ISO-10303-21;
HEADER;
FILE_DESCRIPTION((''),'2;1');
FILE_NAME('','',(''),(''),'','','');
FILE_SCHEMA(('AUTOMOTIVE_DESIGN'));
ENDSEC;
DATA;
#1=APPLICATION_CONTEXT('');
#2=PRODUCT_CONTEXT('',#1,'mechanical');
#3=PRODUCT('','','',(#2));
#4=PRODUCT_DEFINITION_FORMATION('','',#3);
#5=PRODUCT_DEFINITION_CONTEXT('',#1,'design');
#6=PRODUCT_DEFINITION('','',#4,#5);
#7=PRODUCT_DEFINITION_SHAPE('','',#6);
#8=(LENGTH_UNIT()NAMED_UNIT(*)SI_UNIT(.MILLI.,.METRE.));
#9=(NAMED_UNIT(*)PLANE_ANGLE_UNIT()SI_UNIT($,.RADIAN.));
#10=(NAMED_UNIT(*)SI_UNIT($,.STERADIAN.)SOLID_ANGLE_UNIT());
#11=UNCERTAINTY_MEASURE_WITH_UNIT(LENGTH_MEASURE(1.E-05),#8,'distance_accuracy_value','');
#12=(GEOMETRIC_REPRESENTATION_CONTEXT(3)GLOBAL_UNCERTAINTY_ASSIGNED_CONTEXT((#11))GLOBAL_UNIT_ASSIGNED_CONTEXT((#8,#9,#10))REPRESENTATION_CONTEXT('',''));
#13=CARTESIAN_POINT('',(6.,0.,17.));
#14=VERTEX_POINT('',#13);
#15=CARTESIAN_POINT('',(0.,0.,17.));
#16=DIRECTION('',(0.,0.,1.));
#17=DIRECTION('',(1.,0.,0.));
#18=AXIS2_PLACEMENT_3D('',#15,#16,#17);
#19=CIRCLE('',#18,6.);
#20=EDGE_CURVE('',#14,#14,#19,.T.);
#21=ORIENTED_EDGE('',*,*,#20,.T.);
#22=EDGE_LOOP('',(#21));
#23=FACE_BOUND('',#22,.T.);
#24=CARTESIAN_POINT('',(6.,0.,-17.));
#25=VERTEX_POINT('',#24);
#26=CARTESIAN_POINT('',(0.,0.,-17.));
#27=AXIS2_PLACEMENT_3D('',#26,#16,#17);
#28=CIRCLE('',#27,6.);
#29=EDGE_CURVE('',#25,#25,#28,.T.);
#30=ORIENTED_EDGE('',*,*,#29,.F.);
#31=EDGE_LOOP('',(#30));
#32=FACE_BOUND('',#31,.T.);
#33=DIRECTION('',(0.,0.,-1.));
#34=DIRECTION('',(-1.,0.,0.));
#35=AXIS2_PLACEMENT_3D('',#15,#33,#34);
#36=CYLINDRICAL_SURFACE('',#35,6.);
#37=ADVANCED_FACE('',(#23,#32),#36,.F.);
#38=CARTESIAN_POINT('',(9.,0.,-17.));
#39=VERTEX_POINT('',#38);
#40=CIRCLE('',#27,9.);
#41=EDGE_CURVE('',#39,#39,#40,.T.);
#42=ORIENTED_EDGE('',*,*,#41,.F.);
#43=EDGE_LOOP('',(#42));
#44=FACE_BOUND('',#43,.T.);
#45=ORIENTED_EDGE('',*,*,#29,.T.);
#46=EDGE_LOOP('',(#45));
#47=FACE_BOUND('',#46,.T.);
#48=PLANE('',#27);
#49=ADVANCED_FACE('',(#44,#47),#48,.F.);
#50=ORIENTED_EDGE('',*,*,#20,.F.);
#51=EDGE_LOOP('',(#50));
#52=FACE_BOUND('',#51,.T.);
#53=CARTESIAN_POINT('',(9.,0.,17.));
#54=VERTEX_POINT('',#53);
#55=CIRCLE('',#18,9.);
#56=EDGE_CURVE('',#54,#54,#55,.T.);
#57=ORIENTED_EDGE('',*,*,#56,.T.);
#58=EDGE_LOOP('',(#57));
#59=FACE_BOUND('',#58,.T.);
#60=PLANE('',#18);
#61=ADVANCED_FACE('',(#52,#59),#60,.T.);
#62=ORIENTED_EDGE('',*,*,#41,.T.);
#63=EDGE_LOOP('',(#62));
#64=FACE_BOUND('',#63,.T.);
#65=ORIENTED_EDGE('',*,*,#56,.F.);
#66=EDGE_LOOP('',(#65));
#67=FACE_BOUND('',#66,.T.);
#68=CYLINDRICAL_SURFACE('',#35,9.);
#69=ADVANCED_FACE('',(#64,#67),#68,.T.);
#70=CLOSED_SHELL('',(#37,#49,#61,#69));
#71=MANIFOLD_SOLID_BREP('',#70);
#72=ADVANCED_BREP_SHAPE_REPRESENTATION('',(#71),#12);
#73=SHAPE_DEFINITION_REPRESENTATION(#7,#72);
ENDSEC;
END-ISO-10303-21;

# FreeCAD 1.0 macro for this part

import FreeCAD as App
import Part
import Sketcher

V = App.Vector
Q = App.Units.Quantity

doc = App.newDocument("Part")
body = doc.addObject("PartDesign::Body", "Body")

# Sketch on XY plane
sketch1 = body.newObject("Sketcher::SketchObject", "Sketch")
sketch1.AttachmentSupport = (doc.getObject("XY_Plane"), [""])
sketch1.MapMode = "FlatFace"
sketch1.addGeometry([
    Part.Circle(V(0, 0, 0), V(0, 0, 1), 9),
    Part.Circle(V(0, 0, 0), V(0, 0, 1), 6),
], False)
sketch1.addConstraint([
    Sketcher.Constraint("Coincident", 0, 3, -1, 1),
    Sketcher.Constraint("Coincident", 1, 3, -1, 1),
    Sketcher.Constraint("Diameter", 0, Q("18 mm")),
    Sketcher.Constraint("Diameter", 1, Q("12 mm")),
])
pad1 = body.newObject("PartDesign::Pad", "Pad")
pad1.Profile = sketch1
pad1.Length = 34
pad1.Midplane = True

doc.recompute()
